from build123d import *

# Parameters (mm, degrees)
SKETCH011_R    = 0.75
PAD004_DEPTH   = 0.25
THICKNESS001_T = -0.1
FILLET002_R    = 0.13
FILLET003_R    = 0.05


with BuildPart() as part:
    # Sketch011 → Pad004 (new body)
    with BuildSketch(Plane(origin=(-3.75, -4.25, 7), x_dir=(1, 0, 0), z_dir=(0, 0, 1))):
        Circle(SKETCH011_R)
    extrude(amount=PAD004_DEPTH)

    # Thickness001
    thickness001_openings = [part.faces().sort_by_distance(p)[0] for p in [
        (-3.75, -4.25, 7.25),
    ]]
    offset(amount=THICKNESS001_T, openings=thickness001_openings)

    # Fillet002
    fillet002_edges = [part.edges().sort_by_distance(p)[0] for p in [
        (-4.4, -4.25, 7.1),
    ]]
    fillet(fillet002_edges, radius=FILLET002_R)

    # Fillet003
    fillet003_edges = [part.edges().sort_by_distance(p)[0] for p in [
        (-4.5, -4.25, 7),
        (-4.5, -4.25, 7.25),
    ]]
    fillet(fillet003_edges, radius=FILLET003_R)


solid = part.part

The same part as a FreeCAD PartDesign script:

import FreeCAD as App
import Part
import Sketcher


def edges_at(feature, points):
    """Names of the edges that pass closest to the given points."""
    edges = feature.Shape.Edges
    near = lambda p: min(range(len(edges)), key=lambda i: edges[i].distToShape(Part.Vertex(*p))[0])
    return sorted({f"Edge{near(p) + 1}" for p in points})


def faces_at(feature, points):
    """Names of the faces that lie closest to the given points."""
    faces = feature.Shape.Faces
    near = lambda p: min(range(len(faces)), key=lambda i: faces[i].distToShape(Part.Vertex(*p))[0])
    return sorted({f"Face{near(p) + 1}" for p in points})

doc = App.newDocument("Part")
params = doc.addObject("Spreadsheet::Sheet", "Params")
for row, (alias, value) in enumerate([
    ("sketch1_diameter", "1.5 mm"),
    ("pad1_length", "0.25 mm"),
    ("thickness_wall", "0.1 mm"),
    ("fillet_radius", "0.13 mm"),
    ("fillet2_radius", "0.05 mm"),
], start=1):
    params.set(f"A{row}", alias)
    params.set(f"B{row}", "=" + value)
    params.setAlias(f"B{row}", alias)

body = doc.addObject("PartDesign::Body", "Body")

sketch1 = body.newObject("Sketcher::SketchObject", "Sketch")
sketch1.AttachmentSupport = (doc.getObject("XY_Plane"), [""])
sketch1.MapMode = "FlatFace"
sketch1.AttachmentOffset = App.Placement(App.Vector(0, 0, 7), App.Rotation())
sketch1.addGeometry(Part.Circle(App.Vector(-3.75, -4.25, 0), App.Vector(0, 0, 1), 0.75), False)
sketch1.addConstraint([
    Sketcher.Constraint("Diameter", 0, 1.5),
    Sketcher.Constraint("DistanceX", 0, 3, -1, 1, 3.75),
    Sketcher.Constraint("DistanceY", 0, 3, -1, 1, 4.25),
])
sketch1.setExpression("Constraints[0]", "Params.sketch1_diameter")
pad1 = body.newObject("PartDesign::Pad", "Pad")
pad1.Profile = sketch1
pad1.setExpression("Length", "Params.pad1_length")
doc.recompute()

thickness = body.newObject("PartDesign::Thickness", "Thickness")
thickness.Base = (pad1, faces_at(pad1, [(-3.75, -4.25, 7.25)]))
thickness.setExpression("Value", "Params.thickness_wall")
thickness.Reversed = True
thickness.Join = "Arc"
doc.recompute()

fillet = body.newObject("PartDesign::Fillet", "Fillet")
fillet.Base = (thickness, edges_at(thickness, [(-4.4, -4.25, 7.1)]))
fillet.setExpression("Radius", "Params.fillet_radius")
doc.recompute()

fillet2 = body.newObject("PartDesign::Fillet", "Fillet001")
fillet2.Base = (fillet, edges_at(fillet, [(-4.5, -4.25, 7), (-4.5, -4.25, 7.25)]))
fillet2.setExpression("Radius", "Params.fillet2_radius")

doc.recompute()
